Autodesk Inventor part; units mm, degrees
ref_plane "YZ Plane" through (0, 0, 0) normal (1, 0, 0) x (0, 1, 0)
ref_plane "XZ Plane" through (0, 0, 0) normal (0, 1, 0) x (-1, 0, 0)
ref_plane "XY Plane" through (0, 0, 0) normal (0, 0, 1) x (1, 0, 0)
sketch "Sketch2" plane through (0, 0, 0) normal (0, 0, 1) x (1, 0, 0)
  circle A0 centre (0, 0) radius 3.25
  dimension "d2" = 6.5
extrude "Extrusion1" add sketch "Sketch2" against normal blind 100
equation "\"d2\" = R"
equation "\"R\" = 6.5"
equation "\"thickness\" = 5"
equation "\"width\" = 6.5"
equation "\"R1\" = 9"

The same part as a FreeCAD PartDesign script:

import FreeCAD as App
import Part
import Sketcher

V = App.Vector
Q = App.Units.Quantity

doc = App.newDocument("Part")
params = doc.addObject("Spreadsheet::Sheet", "Params")
for row, (alias, value) in enumerate([
    ("pad1_length", "3.9370079 in"),
], start=1):
    params.set(f"A{row}", alias)
    params.set(f"B{row}", "=" + value)
    params.setAlias(f"B{row}", alias)

body = doc.addObject("PartDesign::Body", "Body")

# Sketch on XY plane
sketch1 = body.newObject("Sketcher::SketchObject", "Sketch")
sketch1.AttachmentSupport = (doc.getObject("XY_Plane"), [""])
sketch1.MapMode = "FlatFace"
sketch1.addGeometry(Part.Circle(V(0, 0, 0), V(0, 0, 1), 3.25), False)
sketch1.addConstraint([
    Sketcher.Constraint("Coincident", 0, 3, -1, 1),
    Sketcher.Constraint("Diameter", 0, Q("0.2559 in")),
])
pad1 = body.newObject("PartDesign::Pad", "Pad")
pad1.Profile = sketch1
pad1.setExpression("Length", "Params.pad1_length")
pad1.Reversed = True

doc.recompute()
